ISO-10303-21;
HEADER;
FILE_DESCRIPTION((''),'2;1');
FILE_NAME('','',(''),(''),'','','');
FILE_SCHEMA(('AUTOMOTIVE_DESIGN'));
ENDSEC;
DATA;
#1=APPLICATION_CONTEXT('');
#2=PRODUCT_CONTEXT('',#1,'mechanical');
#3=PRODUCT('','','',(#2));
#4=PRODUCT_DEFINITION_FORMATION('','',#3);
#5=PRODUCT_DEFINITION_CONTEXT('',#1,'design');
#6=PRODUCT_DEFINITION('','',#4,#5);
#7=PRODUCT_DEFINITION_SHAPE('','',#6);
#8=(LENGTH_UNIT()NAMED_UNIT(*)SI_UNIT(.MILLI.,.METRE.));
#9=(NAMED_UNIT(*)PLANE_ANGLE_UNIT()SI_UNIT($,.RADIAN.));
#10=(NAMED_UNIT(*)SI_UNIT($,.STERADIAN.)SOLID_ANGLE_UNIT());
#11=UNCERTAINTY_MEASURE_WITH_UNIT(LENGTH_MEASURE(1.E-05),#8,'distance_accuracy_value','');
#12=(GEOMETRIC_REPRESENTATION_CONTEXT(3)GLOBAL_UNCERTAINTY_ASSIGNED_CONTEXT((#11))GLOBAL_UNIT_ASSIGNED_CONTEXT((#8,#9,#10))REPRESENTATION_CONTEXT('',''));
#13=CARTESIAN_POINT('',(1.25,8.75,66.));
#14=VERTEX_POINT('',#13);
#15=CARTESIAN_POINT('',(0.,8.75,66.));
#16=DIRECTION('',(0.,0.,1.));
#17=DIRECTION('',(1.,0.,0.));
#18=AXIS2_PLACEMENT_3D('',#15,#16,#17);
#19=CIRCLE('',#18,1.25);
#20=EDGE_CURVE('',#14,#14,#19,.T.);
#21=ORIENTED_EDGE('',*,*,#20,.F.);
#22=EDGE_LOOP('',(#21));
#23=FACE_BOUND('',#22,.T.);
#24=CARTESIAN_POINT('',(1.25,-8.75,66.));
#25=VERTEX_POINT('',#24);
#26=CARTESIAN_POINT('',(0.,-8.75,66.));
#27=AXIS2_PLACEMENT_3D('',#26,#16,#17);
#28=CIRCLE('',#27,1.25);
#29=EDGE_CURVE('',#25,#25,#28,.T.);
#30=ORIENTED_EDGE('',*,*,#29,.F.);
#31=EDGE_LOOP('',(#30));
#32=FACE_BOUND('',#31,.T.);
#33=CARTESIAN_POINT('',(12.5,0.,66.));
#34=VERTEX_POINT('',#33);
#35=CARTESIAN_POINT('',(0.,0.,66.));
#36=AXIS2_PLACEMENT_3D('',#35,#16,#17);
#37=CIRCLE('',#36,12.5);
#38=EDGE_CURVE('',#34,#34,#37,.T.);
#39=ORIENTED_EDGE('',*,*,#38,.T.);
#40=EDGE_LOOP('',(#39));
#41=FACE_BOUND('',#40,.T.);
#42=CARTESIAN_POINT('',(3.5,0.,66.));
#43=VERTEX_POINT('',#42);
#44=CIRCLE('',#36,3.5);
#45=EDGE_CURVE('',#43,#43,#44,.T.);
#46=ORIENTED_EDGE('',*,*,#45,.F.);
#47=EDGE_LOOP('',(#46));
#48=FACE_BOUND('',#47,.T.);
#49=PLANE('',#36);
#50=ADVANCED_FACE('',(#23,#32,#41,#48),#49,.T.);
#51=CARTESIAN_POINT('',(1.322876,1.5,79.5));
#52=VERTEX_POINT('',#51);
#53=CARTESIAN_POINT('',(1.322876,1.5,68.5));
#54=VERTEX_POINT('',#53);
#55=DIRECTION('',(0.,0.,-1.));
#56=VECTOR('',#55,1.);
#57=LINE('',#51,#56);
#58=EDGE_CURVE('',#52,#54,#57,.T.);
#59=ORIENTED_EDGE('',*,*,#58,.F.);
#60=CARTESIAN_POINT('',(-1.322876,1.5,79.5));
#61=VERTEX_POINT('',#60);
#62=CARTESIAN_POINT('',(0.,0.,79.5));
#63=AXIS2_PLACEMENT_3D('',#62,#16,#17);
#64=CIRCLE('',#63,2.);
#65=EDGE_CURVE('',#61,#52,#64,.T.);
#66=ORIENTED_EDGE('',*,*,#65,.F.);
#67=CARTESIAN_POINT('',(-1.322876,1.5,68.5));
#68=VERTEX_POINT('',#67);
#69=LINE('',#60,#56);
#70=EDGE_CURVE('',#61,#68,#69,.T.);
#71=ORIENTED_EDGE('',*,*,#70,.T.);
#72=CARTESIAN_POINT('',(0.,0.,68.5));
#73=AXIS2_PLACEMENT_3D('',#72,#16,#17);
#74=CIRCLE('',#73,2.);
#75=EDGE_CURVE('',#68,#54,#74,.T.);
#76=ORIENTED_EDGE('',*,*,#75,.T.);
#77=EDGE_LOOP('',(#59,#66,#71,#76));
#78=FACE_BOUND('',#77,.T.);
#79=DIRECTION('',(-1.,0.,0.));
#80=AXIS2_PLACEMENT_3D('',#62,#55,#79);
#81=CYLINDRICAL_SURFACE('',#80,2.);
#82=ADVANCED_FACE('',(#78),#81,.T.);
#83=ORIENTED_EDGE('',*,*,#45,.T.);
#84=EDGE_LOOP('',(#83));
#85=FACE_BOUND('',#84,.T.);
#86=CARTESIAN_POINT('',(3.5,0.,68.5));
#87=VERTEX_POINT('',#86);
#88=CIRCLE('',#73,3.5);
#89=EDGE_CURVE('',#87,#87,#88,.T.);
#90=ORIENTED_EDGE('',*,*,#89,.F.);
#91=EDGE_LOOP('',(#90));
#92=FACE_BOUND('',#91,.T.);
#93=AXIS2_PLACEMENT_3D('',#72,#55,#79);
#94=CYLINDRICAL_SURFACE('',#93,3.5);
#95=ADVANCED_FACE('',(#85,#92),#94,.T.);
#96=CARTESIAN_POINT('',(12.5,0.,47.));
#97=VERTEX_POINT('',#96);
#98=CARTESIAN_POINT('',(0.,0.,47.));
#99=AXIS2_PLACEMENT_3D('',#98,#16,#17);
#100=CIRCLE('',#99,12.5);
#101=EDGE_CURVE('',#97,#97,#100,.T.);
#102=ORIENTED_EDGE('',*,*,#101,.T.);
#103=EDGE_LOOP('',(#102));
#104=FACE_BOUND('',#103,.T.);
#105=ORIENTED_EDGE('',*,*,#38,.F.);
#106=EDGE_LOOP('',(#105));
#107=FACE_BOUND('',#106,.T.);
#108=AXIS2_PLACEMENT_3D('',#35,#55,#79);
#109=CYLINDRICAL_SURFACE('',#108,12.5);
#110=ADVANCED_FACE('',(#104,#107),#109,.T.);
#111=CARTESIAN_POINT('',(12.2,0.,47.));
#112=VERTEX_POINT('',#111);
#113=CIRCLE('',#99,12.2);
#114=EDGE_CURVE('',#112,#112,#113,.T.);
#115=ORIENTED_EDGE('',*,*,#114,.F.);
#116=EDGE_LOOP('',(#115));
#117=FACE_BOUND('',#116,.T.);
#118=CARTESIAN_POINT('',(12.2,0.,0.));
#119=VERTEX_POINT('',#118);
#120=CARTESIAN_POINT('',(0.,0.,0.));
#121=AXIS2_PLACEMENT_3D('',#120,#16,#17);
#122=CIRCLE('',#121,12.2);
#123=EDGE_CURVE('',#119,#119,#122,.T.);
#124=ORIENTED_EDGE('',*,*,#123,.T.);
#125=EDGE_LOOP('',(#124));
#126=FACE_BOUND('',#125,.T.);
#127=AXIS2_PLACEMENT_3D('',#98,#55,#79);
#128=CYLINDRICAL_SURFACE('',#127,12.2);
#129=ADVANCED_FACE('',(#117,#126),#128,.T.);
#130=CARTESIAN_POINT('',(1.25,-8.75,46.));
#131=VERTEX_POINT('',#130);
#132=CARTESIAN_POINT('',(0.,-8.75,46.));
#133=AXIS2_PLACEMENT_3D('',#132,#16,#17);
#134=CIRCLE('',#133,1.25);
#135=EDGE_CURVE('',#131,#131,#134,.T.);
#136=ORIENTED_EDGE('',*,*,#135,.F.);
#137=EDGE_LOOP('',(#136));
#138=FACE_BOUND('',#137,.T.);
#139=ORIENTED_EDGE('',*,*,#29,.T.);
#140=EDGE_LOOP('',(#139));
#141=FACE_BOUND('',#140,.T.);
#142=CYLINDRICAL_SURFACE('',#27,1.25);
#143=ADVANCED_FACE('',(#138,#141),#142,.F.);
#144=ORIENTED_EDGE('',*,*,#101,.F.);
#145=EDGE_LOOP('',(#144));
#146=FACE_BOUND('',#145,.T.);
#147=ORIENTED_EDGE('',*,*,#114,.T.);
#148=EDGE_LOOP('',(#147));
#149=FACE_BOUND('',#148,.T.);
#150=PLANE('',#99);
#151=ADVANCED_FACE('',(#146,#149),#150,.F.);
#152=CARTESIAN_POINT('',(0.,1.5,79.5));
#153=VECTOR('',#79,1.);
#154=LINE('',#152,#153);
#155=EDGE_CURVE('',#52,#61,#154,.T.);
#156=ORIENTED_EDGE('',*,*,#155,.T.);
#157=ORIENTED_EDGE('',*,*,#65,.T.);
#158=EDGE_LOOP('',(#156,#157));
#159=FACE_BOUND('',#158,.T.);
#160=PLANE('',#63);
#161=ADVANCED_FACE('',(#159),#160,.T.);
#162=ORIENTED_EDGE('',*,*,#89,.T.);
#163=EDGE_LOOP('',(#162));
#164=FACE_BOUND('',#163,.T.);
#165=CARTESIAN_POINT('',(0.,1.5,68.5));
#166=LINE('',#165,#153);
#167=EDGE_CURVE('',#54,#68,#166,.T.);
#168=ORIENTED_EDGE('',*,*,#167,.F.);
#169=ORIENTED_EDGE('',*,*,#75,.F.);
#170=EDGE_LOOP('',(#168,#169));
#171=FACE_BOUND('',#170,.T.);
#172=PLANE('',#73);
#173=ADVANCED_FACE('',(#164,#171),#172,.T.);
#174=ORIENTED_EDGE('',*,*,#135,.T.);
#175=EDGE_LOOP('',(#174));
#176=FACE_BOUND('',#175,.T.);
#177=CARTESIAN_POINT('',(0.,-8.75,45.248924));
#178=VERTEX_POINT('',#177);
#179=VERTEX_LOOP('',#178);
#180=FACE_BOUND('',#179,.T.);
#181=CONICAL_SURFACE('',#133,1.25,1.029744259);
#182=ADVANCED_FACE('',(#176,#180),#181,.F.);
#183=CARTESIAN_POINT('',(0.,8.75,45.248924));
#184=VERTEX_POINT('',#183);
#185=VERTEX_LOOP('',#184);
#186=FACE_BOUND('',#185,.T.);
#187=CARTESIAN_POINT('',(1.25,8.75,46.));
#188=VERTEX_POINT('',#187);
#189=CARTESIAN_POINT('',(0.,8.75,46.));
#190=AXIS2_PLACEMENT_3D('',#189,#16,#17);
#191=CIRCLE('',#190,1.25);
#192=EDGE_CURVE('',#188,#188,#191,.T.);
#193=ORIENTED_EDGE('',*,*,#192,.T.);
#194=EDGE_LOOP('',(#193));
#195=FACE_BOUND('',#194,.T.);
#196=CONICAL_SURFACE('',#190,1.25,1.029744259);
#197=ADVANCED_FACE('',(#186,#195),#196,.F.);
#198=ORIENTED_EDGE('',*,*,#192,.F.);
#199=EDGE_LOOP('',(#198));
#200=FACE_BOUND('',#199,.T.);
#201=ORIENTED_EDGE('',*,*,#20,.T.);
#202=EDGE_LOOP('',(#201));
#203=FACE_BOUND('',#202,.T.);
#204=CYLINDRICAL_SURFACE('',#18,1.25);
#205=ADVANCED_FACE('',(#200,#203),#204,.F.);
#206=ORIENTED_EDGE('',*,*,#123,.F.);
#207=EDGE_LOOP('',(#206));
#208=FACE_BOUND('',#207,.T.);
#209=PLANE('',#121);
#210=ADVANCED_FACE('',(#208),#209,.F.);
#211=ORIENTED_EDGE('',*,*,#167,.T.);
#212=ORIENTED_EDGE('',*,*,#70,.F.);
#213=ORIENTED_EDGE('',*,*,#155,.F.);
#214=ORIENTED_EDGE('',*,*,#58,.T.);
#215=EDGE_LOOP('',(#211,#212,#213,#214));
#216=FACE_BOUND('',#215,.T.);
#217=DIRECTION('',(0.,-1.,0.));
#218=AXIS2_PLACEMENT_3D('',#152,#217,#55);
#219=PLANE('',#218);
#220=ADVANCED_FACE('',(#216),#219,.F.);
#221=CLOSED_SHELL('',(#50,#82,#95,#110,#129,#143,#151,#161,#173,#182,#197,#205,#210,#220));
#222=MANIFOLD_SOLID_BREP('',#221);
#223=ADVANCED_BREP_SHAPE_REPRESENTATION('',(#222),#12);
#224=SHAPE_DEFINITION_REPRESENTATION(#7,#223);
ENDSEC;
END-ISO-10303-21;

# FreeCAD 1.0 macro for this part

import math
import FreeCAD as App
import Part
import Sketcher
from FreeCAD import Vector

doc = App.newDocument("Part")
body = doc.addObject("PartDesign::Body", "Body")

# Sketch on XY plane
sketch1 = body.newObject("Sketcher::SketchObject", "Sketch")
sketch1.AttachmentSupport = (doc.getObject("XY_Plane"), [""])
sketch1.MapMode = "FlatFace"
sketch1.addGeometry(Part.Circle(Vector(0, 0, 0), Vector(0, 0, 1), 12), False)
sketch1.addConstraint(Sketcher.Constraint("Coincident", 0, 3, -1, 1))
sketch1.addConstraint(Sketcher.Constraint("Diameter", 0, 24.4))
pad1 = body.newObject("PartDesign::Pad", "Pad")
pad1.Profile = sketch1
pad1.Length = 47

# Sketch on XY plane
sketch2 = body.newObject("Sketcher::SketchObject", "Sketch001")
sketch2.AttachmentSupport = (doc.getObject("XY_Plane"), [""])
sketch2.MapMode = "FlatFace"
sketch2.AttachmentOffset = App.Placement(Vector(0, 0, 47), App.Rotation())
sketch2.addGeometry(Part.Circle(Vector(0, 0, 0), Vector(0, 0, 1), 12), False)
sketch2.addConstraint(Sketcher.Constraint("Coincident", 0, 3, -1, 1))
sketch2.addConstraint(Sketcher.Constraint("Diameter", 0, 25.0))
pad2 = body.newObject("PartDesign::Pad", "Pad001")
pad2.Profile = sketch2
pad2.Length = 19

# Sketch on XY plane
sketch3 = body.newObject("Sketcher::SketchObject", "Sketch002")
sketch3.AttachmentSupport = (doc.getObject("XY_Plane"), [""])
sketch3.MapMode = "FlatFace"
sketch3.AttachmentOffset = App.Placement(Vector(0, 0, 66), App.Rotation())
sketch3.addGeometry(Part.Circle(Vector(0, 0, 0), Vector(0, 0, 1), 3.5), False)
sketch3.addConstraint(Sketcher.Constraint("Coincident", 0, 3, -1, 1))
sketch3.addConstraint(Sketcher.Constraint("Diameter", 0, 7.0))
pad3 = body.newObject("PartDesign::Pad", "Pad002")
pad3.Profile = sketch3
pad3.Length = 2.5

# Sketch on XY plane
sketch4 = body.newObject("Sketcher::SketchObject", "Sketch003")
sketch4.AttachmentSupport = (doc.getObject("XY_Plane"), [""])
sketch4.MapMode = "FlatFace"
sketch4.AttachmentOffset = App.Placement(Vector(0, 0, 68.5), App.Rotation())
sketch4.addGeometry(Part.LineSegment(Vector(1.3, 1.5, 0), Vector(-1.3, 1.5, 0)), False)
sketch4.addGeometry(Part.ArcOfCircle(Part.Circle(Vector(0, 0, 0), Vector(0, 0, 1), 2), math.radians(131), math.radians(360)), False)
sketch4.addGeometry(Part.ArcOfCircle(Part.Circle(Vector(0, 0, 0), Vector(0, 0, 1), 2), math.radians(0), math.radians(49)), False)
sketch4.addConstraint(Sketcher.Constraint("Coincident", 0, 2, 1, 1))
sketch4.addConstraint(Sketcher.Constraint("Tangent", 1, 2, 2, 1))
sketch4.addConstraint(Sketcher.Constraint("Coincident", 2, 2, 0, 1))
sketch4.addConstraint(Sketcher.Constraint("Horizontal", 0))
sketch4.addConstraint(Sketcher.Constraint("Coincident", 1, 3, -1, 1))
sketch4.addConstraint(Sketcher.Constraint("Equal", 1, 2))
sketch4.addConstraint(Sketcher.Constraint("PointOnObject", 1, 2, -1))
sketch4.addConstraint(Sketcher.Constraint("Radius", 1, 2.0))
sketch4.addConstraint(Sketcher.Constraint("DistanceY", -1, 1, 0, 2, 1.5))
pad4 = body.newObject("PartDesign::Pad", "Pad003")
pad4.Profile = sketch4
pad4.Length = 11

# Sketch on XY plane
sketch5 = body.newObject("Sketcher::SketchObject", "Sketch004")
sketch5.AttachmentSupport = (doc.getObject("XY_Plane"), [""])
sketch5.MapMode = "FlatFace"
sketch5.AttachmentOffset = App.Placement(Vector(0, 0, 66), App.Rotation())
sketch5.addGeometry(Part.Circle(Vector(0, 8.8, 0), Vector(0, 0, 1), 1.2), False)
sketch5.addGeometry(Part.Circle(Vector(0, -8.8, 0), Vector(0, 0, 1), 1.2), False)
sketch5.addConstraint(Sketcher.Constraint("Equal", 0, 1))
sketch5.addConstraint(Sketcher.Constraint("Symmetric", 0, 3, 1, 3, -1, 1))
sketch5.addConstraint(Sketcher.Constraint("PointOnObject", 0, 3, -2))
sketch5.addConstraint(Sketcher.Constraint("Diameter", 0, 2.5))
sketch5.addConstraint(Sketcher.Constraint("DistanceY", 1, 3, 0, 3, 17.5))
doc.recompute()
hole = body.newObject("PartDesign::Hole", "Hole")
hole.Profile = sketch5
hole.ThreadType = "None"
hole.Diameter = 2.5
hole.DepthType = "Dimension"
hole.Depth = 20
hole.DrillPoint = "Angled"
hole.DrillPointAngle = 118

doc.recompute()
